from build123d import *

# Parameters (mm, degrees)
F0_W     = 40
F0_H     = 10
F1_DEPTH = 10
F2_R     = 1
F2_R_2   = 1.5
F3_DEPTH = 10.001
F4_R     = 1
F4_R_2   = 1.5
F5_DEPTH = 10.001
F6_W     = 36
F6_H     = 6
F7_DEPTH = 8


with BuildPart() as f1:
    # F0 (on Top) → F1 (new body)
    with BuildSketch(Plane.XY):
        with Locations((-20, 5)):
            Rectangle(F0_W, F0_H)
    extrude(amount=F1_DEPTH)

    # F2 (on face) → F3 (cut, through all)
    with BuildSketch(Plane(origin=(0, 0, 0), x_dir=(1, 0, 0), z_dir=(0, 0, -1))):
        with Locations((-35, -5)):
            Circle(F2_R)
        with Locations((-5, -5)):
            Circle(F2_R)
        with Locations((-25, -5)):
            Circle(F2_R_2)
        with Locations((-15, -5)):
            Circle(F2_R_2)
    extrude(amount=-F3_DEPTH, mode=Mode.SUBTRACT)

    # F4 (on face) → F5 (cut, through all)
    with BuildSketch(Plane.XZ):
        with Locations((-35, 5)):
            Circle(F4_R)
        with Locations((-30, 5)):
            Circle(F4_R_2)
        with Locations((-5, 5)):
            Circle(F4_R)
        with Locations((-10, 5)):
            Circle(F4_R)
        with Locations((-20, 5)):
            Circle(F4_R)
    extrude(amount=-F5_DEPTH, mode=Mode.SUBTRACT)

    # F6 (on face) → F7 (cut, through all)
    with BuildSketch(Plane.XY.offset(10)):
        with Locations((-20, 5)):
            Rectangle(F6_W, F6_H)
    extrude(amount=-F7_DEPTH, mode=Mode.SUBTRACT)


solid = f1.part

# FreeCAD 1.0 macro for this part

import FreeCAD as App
import Part
import Sketcher

V = App.Vector

doc = App.newDocument("Part")
body = doc.addObject("PartDesign::Body", "Body")

# Sketch on XY plane
sketch1 = doc.addObject("Sketcher::SketchObject", "Sketch")
body.addObject(sketch1)
sketch1.AttachmentSupport = (doc.XY_Plane, [""])
sketch1.MapMode = "FlatFace"
sketch1.addGeometry([
    Part.LineSegment(V(-40, 10, 0), V(-40, 0, 0)),
    Part.LineSegment(V(-40, 0, 0), V(0, 0, 0)),
    Part.LineSegment(V(0, 0, 0), V(0, 10, 0)),
    Part.LineSegment(V(0, 10, 0), V(-40, 10, 0)),
], False)
sketch1.addConstraint([
    Sketcher.Constraint("Coincident", 0, 2, 1, 1),
    Sketcher.Constraint("Coincident", 1, 2, 2, 1),
    Sketcher.Constraint("Coincident", 2, 2, 3, 1),
    Sketcher.Constraint("Coincident", 3, 2, 0, 1),
    Sketcher.Constraint("Vertical", 0),
    Sketcher.Constraint("Horizontal", 1),
    Sketcher.Constraint("Vertical", 2),
    Sketcher.Constraint("Horizontal", 3),
    Sketcher.Constraint("Coincident", 1, 2, -1, 1),
    Sketcher.Constraint("DistanceX", 1, 1, 1, 2, 40.0),
    Sketcher.Constraint("DistanceY", 0, 2, 0, 1, 10.0),
])
pad1 = doc.addObject("PartDesign::Pad", "Pad")
body.addObject(pad1)
pad1.Profile = sketch1
pad1.Length = 10

# Sketch on XY plane
sketch2 = doc.addObject("Sketcher::SketchObject", "Sketch001")
body.addObject(sketch2)
sketch2.AttachmentSupport = (doc.XY_Plane, [""])
sketch2.MapMode = "FlatFace"
sketch2.addGeometry([
    Part.Circle(V(-35, 5, 0), V(0, 0, 1), 1),
    Part.Circle(V(-5, 5, 0), V(0, 0, 1), 1),
    Part.Circle(V(-25, 5, 0), V(0, 0, 1), 1.5),
    Part.Circle(V(-15, 5, 0), V(0, 0, 1), 1.5),
], False)
sketch2.addConstraint([
    Sketcher.Constraint("Equal", 0, 1),
    Sketcher.Constraint("Equal", 2, 3),
    Sketcher.Constraint("Horizontal", 0, 3, 1, 3),
    Sketcher.Constraint("Horizontal", 1, 3, 2, 3),
    Sketcher.Constraint("Horizontal", 2, 3, 3, 3),
    Sketcher.Constraint("Diameter", 0, 2.0),
    Sketcher.Constraint("Diameter", 2, 3.0),
    Sketcher.Constraint("DistanceX", 0, 3, -1, 1, 35.0),
    Sketcher.Constraint("DistanceY", -1, 1, 0, 3, 5.0),
    Sketcher.Constraint("DistanceX", 1, 3, -1, 1, 5.0),
    Sketcher.Constraint("DistanceX", 2, 3, -1, 1, 25.0),
    Sketcher.Constraint("DistanceX", 3, 3, -1, 1, 15.0),
])
pocket1 = doc.addObject("PartDesign::Pocket", "Pocket")
body.addObject(pocket1)
pocket1.Profile = sketch2
pocket1.Type = "ThroughAll"
pocket1.Reversed = True

# Sketch on XZ plane
sketch3 = doc.addObject("Sketcher::SketchObject", "Sketch002")
body.addObject(sketch3)
sketch3.AttachmentSupport = (doc.XZ_Plane, [""])
sketch3.MapMode = "FlatFace"
sketch3.addGeometry([
    Part.Circle(V(-35, 5, 0), V(0, 0, 1), 1),  # 0
    Part.Circle(V(-30, 5, 0), V(0, 0, 1), 1.5),  # 1
    Part.Circle(V(-5, 5, 0), V(0, 0, 1), 1),  # 2
    Part.Circle(V(-10, 5, 0), V(0, 0, 1), 1),  # 3
    Part.Circle(V(-20, 5, 0), V(0, 0, 1), 1),  # 4
], False)
sketch3.addConstraint([
    Sketcher.Constraint("Equal", 0, 2),
    Sketcher.Constraint("Equal", 2, 3),
    Sketcher.Constraint("Equal", 3, 4),
    Sketcher.Constraint("Horizontal", 0, 3, 1, 3),
    Sketcher.Constraint("Horizontal", 1, 3, 2, 3),
    Sketcher.Constraint("Horizontal", 2, 3, 3, 3),
    Sketcher.Constraint("Horizontal", 3, 3, 4, 3),
    Sketcher.Constraint("Diameter", 0, 2.0),
    Sketcher.Constraint("Diameter", 1, 3.0),
    Sketcher.Constraint("DistanceX", 0, 3, -1, 1, 35.0),
    Sketcher.Constraint("DistanceY", -1, 1, 0, 3, 5.0),
    Sketcher.Constraint("DistanceX", 1, 3, -1, 1, 30.0),
    Sketcher.Constraint("DistanceX", 2, 3, -1, 1, 5.0),
    Sketcher.Constraint("DistanceX", 3, 3, -1, 1, 10.0),
    Sketcher.Constraint("DistanceX", 4, 3, -1, 1, 20.0),
])
pocket2 = doc.addObject("PartDesign::Pocket", "Pocket001")
body.addObject(pocket2)
pocket2.Profile = sketch3
pocket2.Type = "ThroughAll"

# Sketch on XY plane
sketch4 = doc.addObject("Sketcher::SketchObject", "Sketch003")
body.addObject(sketch4)
sketch4.AttachmentSupport = (doc.XY_Plane, [""])
sketch4.MapMode = "FlatFace"
sketch4.AttachmentOffset = App.Placement(V(0, 0, 10), App.Rotation())
sketch4.addGeometry([
    Part.LineSegment(V(-38, 8, 0), V(-38, 2, 0)),
    Part.LineSegment(V(-38, 2, 0), V(-2, 2, 0)),
    Part.LineSegment(V(-2, 2, 0), V(-2, 8, 0)),
    Part.LineSegment(V(-2, 8, 0), V(-38, 8, 0)),
], False)
sketch4.addConstraint([
    Sketcher.Constraint("Coincident", 0, 2, 1, 1),
    Sketcher.Constraint("Coincident", 1, 2, 2, 1),
    Sketcher.Constraint("Coincident", 2, 2, 3, 1),
    Sketcher.Constraint("Coincident", 3, 2, 0, 1),
    Sketcher.Constraint("Vertical", 0),
    Sketcher.Constraint("Horizontal", 1),
    Sketcher.Constraint("Vertical", 2),
    Sketcher.Constraint("Horizontal", 3),
    Sketcher.Constraint("DistanceX", 1, 1, 1, 2, 36.0),
    Sketcher.Constraint("DistanceY", 0, 2, 0, 1, 6.0),
    Sketcher.Constraint("DistanceX", 0, 2, -1, 1, 38.0),
    Sketcher.Constraint("DistanceY", -1, 1, 0, 2, 2.0),
])
pocket3 = doc.addObject("PartDesign::Pocket", "Pocket002")
body.addObject(pocket3)
pocket3.Profile = sketch4
pocket3.Length = 8

doc.recompute()
